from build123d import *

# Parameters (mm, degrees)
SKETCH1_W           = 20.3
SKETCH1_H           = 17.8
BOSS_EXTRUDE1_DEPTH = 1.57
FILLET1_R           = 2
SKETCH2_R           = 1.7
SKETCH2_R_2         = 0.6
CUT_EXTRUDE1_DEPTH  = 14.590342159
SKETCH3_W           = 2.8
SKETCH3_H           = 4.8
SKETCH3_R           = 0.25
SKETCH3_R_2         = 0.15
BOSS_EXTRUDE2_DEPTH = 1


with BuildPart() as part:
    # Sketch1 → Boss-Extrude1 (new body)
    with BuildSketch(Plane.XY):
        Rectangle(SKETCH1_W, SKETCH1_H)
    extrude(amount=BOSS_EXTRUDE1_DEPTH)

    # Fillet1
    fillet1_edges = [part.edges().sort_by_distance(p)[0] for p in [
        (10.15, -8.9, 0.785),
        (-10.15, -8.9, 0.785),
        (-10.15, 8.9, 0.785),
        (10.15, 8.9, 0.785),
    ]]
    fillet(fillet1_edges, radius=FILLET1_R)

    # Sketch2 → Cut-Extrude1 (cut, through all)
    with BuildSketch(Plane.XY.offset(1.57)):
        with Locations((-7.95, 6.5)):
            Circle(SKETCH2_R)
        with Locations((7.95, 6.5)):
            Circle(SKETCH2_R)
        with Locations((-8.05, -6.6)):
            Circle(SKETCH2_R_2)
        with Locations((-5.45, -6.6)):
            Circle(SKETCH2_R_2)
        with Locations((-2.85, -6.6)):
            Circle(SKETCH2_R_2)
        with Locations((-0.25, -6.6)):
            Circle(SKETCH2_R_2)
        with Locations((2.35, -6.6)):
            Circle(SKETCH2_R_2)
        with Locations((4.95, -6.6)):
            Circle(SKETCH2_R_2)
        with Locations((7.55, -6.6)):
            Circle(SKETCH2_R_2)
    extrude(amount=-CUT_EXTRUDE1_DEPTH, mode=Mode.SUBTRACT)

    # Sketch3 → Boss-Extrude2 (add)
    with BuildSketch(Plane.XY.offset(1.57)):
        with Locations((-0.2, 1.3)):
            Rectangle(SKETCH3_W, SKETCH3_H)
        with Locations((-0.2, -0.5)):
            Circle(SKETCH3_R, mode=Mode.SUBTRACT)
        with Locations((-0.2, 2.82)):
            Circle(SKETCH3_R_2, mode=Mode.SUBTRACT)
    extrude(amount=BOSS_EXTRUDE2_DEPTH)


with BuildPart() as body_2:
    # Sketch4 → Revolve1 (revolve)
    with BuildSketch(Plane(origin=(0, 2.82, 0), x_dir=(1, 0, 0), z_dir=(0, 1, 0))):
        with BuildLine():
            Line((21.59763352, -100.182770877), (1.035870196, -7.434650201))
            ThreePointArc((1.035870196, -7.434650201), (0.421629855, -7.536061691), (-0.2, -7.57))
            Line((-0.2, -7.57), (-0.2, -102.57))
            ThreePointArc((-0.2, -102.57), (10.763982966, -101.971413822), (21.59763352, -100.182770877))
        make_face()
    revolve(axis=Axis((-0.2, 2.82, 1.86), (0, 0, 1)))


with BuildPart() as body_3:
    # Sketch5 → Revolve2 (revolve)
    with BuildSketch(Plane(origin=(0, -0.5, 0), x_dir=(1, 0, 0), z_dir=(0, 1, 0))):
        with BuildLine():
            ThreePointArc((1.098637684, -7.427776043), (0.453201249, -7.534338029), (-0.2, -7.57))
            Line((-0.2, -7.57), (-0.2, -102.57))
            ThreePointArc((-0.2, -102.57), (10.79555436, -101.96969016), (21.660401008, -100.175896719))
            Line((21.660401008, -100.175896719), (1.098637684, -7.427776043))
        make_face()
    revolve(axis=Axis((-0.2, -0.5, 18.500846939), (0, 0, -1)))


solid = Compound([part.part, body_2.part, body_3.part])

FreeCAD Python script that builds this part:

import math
import FreeCAD as App
import Part
import Sketcher
from FreeCAD import Vector
Q = App.Units.Quantity


def edges_at(feature, points):
    """Names of the edges that pass closest to the given points."""
    edges = feature.Shape.Edges
    near = lambda p: min(range(len(edges)), key=lambda i: edges[i].distToShape(Part.Vertex(*p))[0])
    return sorted({f"Edge{near(p) + 1}" for p in points})

doc = App.newDocument("Part")
params = doc.addObject("Spreadsheet::Sheet", "Params")
for row, (alias, value) in enumerate([
    ("sketch1_width", "20.3 mm"),
    ("sketch1_height", "17.8 mm"),
    ("pad1_length", "1.57 mm"),
    ("fillet_radius", "2 mm"),
    ("sketch2_diameter", "3.4 mm"),
    ("sketch2_diameter2", "1.2 mm"),
    ("sketch3_diameter", "0.5 mm"),
    ("sketch3_diameter2", "0.3 mm"),
    ("sketch3_width", "2.8 mm"),
    ("sketch3_height", "4.8 mm"),
    ("pad2_length", "1 mm"),
    ("sketch4_height", "95 mm"),
    ("sketch4_radius", "5.71 mm"),
    ("revolution_angle", "360 deg"),
    ("sketch5_radius", "6 mm"),
    ("sketch5_radius2", "101 mm"),
    ("revolution2_angle", "360 deg"),
], start=1):
    params.set(f"A{row}", alias)
    params.set(f"B{row}", "=" + value)
    params.setAlias(f"B{row}", alias)

body = doc.addObject("PartDesign::Body", "Body")

# Sketch on XY plane
sketch1 = body.newObject("Sketcher::SketchObject", "Sketch")
sketch1.AttachmentSupport = (doc.getObject("XY_Plane"), [""])
sketch1.MapMode = "FlatFace"
sketch1.addGeometry([
    Part.LineSegment(Vector(-10, 9, 0), Vector(-10, -9, 0)),
    Part.LineSegment(Vector(-10, -9, 0), Vector(10, -9, 0)),
    Part.LineSegment(Vector(10, -9, 0), Vector(10, 9, 0)),
    Part.LineSegment(Vector(10, 9, 0), Vector(-10, 9, 0)),
], False)
sketch1.addConstraint([
    Sketcher.Constraint("Coincident", 0, 2, 1, 1),
    Sketcher.Constraint("Coincident", 1, 2, 2, 1),
    Sketcher.Constraint("Coincident", 2, 2, 3, 1),
    Sketcher.Constraint("Coincident", 3, 2, 0, 1),
    Sketcher.Constraint("Vertical", 0),
    Sketcher.Constraint("Horizontal", 1),
    Sketcher.Constraint("Vertical", 2),
    Sketcher.Constraint("Horizontal", 3),
    Sketcher.Constraint("Symmetric", 0, 2, 2, 2, -1, 1),
    Sketcher.Constraint("DistanceX", 1, 1, 1, 2, Q("20.3 mm")),
    Sketcher.Constraint("DistanceY", 0, 2, 0, 1, Q("17.8 mm")),
])
sketch1.setExpression("Constraints[9]", "Params.sketch1_width")
sketch1.setExpression("Constraints[10]", "Params.sketch1_height")
pad1 = body.newObject("PartDesign::Pad", "Pad")
pad1.Profile = sketch1
pad1.setExpression("Length", "Params.pad1_length")
doc.recompute()

fillet = body.newObject("PartDesign::Fillet", "Fillet")
fillet.Base = (pad1, edges_at(pad1, [
    (10.15, -8.9, 0.785),
    (-10.15, -8.9, 0.785),
    (-10.15, 8.9, 0.785),
    (10.15, 8.9, 0.785),
]))
fillet.setExpression("Radius", "Params.fillet_radius")

# Sketch on XY plane
sketch2 = body.newObject("Sketcher::SketchObject", "Sketch001")
sketch2.AttachmentSupport = (doc.getObject("XY_Plane"), [""])
sketch2.MapMode = "FlatFace"
sketch2.AttachmentOffset = App.Placement(Vector(0, 0, 1.57), App.Rotation())
sketch2.addGeometry([
    Part.Circle(Vector(-8, 6.5, 0), Vector(0, 0, 1), 1.7),  # 0
    Part.Circle(Vector(8, 6.5, 0), Vector(0, 0, 1), 1.7),  # 1
    Part.Circle(Vector(-8.1, -6.6, 0), Vector(0, 0, 1), 0.6),  # 2
    Part.Circle(Vector(-5.5, -6.6, 0), Vector(0, 0, 1), 0.6),  # 3
    Part.Circle(Vector(-2.9, -6.6, 0), Vector(0, 0, 1), 0.6),  # 4
    Part.Circle(Vector(-0.2, -6.6, 0), Vector(0, 0, 1), 0.6),  # 5
    Part.Circle(Vector(2.4, -6.6, 0), Vector(0, 0, 1), 0.6),  # 6
    Part.Circle(Vector(5, -6.6, 0), Vector(0, 0, 1), 0.6),  # 7
    Part.Circle(Vector(7.5, -6.6, 0), Vector(0, 0, 1), 0.6),  # 8
], False)
sketch2.addConstraint([
    Sketcher.Constraint("Equal", 0, 1),
    Sketcher.Constraint("Equal", 2, 3),
    Sketcher.Constraint("Equal", 3, 4),
    Sketcher.Constraint("Equal", 4, 5),
    Sketcher.Constraint("Equal", 5, 6),
    Sketcher.Constraint("Equal", 6, 7),
    Sketcher.Constraint("Equal", 7, 8),
    Sketcher.Constraint("Symmetric", 0, 3, 1, 3, -2),
    Sketcher.Constraint("Horizontal", 2, 3, 3, 3),
    Sketcher.Constraint("Horizontal", 3, 3, 4, 3),
    Sketcher.Constraint("Horizontal", 4, 3, 5, 3),
    Sketcher.Constraint("Horizontal", 5, 3, 6, 3),
    Sketcher.Constraint("Horizontal", 6, 3, 7, 3),
    Sketcher.Constraint("Horizontal", 7, 3, 8, 3),
    Sketcher.Constraint("Diameter", 0, Q("3.4 mm")),
    Sketcher.Constraint("Diameter", 2, Q("1.2 mm")),
    Sketcher.Constraint("DistanceX", 2, 3, 1, 3, Q("16 mm")),
    Sketcher.Constraint("DistanceX", 2, 3, 7, 3, Q("13 mm")),
    Sketcher.Constraint("DistanceX", 3, 3, 8, 3, Q("13 mm")),
    Sketcher.Constraint("DistanceY", -1, 1, 0, 3, Q("6.5 mm")),
    Sketcher.Constraint("DistanceY", 2, 3, -1, 1, Q("6.6 mm")),
    Sketcher.Constraint("DistanceX", 0, 3, 1, 3, Q("15.9 mm")),
    Sketcher.Constraint("DistanceX", 2, 3, 3, 3, Q("2.6 mm")),
    Sketcher.Constraint("DistanceX", 3, 3, 4, 3, Q("2.6 mm")),
    Sketcher.Constraint("DistanceX", 4, 3, 5, 3, Q("2.6 mm")),
    Sketcher.Constraint("DistanceX", 5, 3, 6, 3, Q("2.6 mm")),
])
sketch2.setExpression("Constraints[14]", "Params.sketch2_diameter")
sketch2.setExpression("Constraints[15]", "Params.sketch2_diameter2")
pocket1 = body.newObject("PartDesign::Pocket", "Pocket")
pocket1.Profile = sketch2
pocket1.Type = "ThroughAll"

# Sketch on XY plane
sketch3 = body.newObject("Sketcher::SketchObject", "Sketch002")
sketch3.AttachmentSupport = (doc.getObject("XY_Plane"), [""])
sketch3.MapMode = "FlatFace"
sketch3.AttachmentOffset = App.Placement(Vector(0, 0, 1.57), App.Rotation())
sketch3.addGeometry([
    Part.LineSegment(Vector(-1.6, 3.7, 0), Vector(-1.6, -1.1, 0)),  # 0
    Part.LineSegment(Vector(-1.6, -1.1, 0), Vector(1.2, -1.1, 0)),  # 1
    Part.LineSegment(Vector(1.2, -1.1, 0), Vector(1.2, 3.7, 0)),  # 2
    Part.LineSegment(Vector(1.2, 3.7, 0), Vector(-1.6, 3.7, 0)),  # 3
    Part.Circle(Vector(-0.2, -0.5, 0), Vector(0, 0, 1), 0.25),  # 4
    Part.Circle(Vector(-0.2, 2.82, 0), Vector(0, 0, 1), 0.15),  # 5
], False)
sketch3.addConstraint([
    Sketcher.Constraint("Coincident", 0, 2, 1, 1),
    Sketcher.Constraint("Coincident", 1, 2, 2, 1),
    Sketcher.Constraint("Coincident", 2, 2, 3, 1),
    Sketcher.Constraint("Coincident", 3, 2, 0, 1),
    Sketcher.Constraint("Vertical", 0),
    Sketcher.Constraint("Horizontal", 1),
    Sketcher.Constraint("Vertical", 2),
    Sketcher.Constraint("Horizontal", 3),
    Sketcher.Constraint("Vertical", 4, 3, 5, 3),
    Sketcher.Constraint("Diameter", 4, Q("0.5 mm")),
    Sketcher.Constraint("Diameter", 5, Q("0.3 mm")),
    Sketcher.Constraint("DistanceX", 1, 1, 1, 2, Q("2.8 mm")),
    Sketcher.Constraint("DistanceY", 0, 2, 0, 1, Q("4.8 mm")),
    Sketcher.Constraint("DistanceX", 4, 3, -1, 1, Q("0.2 mm")),
    Sketcher.Constraint("DistanceY", 4, 3, -1, 1, Q("0.5 mm")),
    Sketcher.Constraint("DistanceX", 0, 2, -1, 1, Q("1.6 mm")),
    Sketcher.Constraint("DistanceY", 0, 2, -1, 1, Q("1.1 mm")),
    Sketcher.Constraint("DistanceY", -1, 1, 5, 3, Q("2.82 mm")),
])
sketch3.setExpression("Constraints[9]", "Params.sketch3_diameter")
sketch3.setExpression("Constraints[10]", "Params.sketch3_diameter2")
sketch3.setExpression("Constraints[11]", "Params.sketch3_width")
sketch3.setExpression("Constraints[12]", "Params.sketch3_height")
pad2 = body.newObject("PartDesign::Pad", "Pad001")
pad2.Profile = sketch3
pad2.setExpression("Length", "Params.pad2_length")
body2 = doc.addObject("PartDesign::Body", "Body001")

# Sketch on XZ plane
sketch4 = body2.newObject("Sketcher::SketchObject", "Sketch003")
sketch4.AttachmentSupport = (doc.getObject("XZ_Plane001"), [""])
sketch4.MapMode = "FlatFace"
sketch4.AttachmentOffset = App.Placement(Vector(0, 0, -2.82), App.Rotation())
sketch4.addGeometry([
    Part.LineSegment(Vector(21.6, 100.2, 0), Vector(1, 7.4, 0)),
    Part.ArcOfCircle(Part.Circle(Vector(-0.2, 1.9, 0), Vector(0, 0, 1), 5.7), math.radians(77.5), math.radians(90)),
    Part.LineSegment(Vector(-0.2, 7.6, 0), Vector(-0.2, 102.6, 0)),
    Part.ArcOfCircle(Part.Circle(Vector(-0.2, 1.9, 0), Vector(0, 0, 1), 100.7), math.radians(77.5), math.radians(90)),
], False)
sketch4.addGeometry(Part.LineSegment(Vector(-0.2, 1.9, 0), Vector(-0.2, 102.6, 0)), True)  # axis
sketch4.addConstraint([
    Sketcher.Constraint("Coincident", 0, 2, 1, 1),
    Sketcher.Constraint("Coincident", 1, 2, 2, 1),
    Sketcher.Constraint("Coincident", 2, 2, 3, 2),
    Sketcher.Constraint("Coincident", 3, 1, 0, 1),
    Sketcher.Constraint("Vertical", 2),
    Sketcher.Constraint("Vertical", 4),
    Sketcher.Constraint("Coincident", 3, 3, 1, 3),
    Sketcher.Constraint("Coincident", 4, 1, 1, 3),
    Sketcher.Constraint("Coincident", 4, 2, 2, 2),
    Sketcher.Constraint("DistanceY", 2, 1, 2, 2, Q("95 mm")),
    Sketcher.Constraint("Radius", 1, Q("5.71 mm")),
    Sketcher.Constraint("Angle", 0, Q("-102.5 deg")),
    Sketcher.Constraint("DistanceX", 1, 3, -1, 1, Q("0.2 mm")),
    Sketcher.Constraint("DistanceY", -1, 1, 1, 3, Q("1.86 mm")),
    Sketcher.Constraint("DistanceX", -1, 1, 0, 2, Q("1.03587 mm")),
])
sketch4.setExpression("Constraints[9]", "Params.sketch4_height")
sketch4.setExpression("Constraints[10]", "Params.sketch4_radius")
revolution = body2.newObject("PartDesign::Revolution", "Revolution")
revolution.Profile = sketch4
revolution.ReferenceAxis = (sketch4, ["Axis0"])
revolution.setExpression("Angle", "Params.revolution_angle")
body3 = doc.addObject("PartDesign::Body", "Body002")

# Sketch on XZ plane
sketch5 = body3.newObject("Sketcher::SketchObject", "Sketch004")
sketch5.AttachmentSupport = (doc.getObject("XZ_Plane002"), [""])
sketch5.MapMode = "FlatFace"
sketch5.AttachmentOffset = App.Placement(Vector(0, 0, 0.5), App.Rotation())
sketch5.addGeometry([
    Part.ArcOfCircle(Part.Circle(Vector(-0.2, 1.6, 0), Vector(0, 0, 1), 6), math.radians(77.5), math.radians(90)),
    Part.LineSegment(Vector(-0.2, 7.6, 0), Vector(-0.2, 102.6, 0)),
    Part.ArcOfCircle(Part.Circle(Vector(-0.2, 1.6, 0), Vector(0, 0, 1), 101), math.radians(77.5), math.radians(90)),
    Part.LineSegment(Vector(21.7, 100.2, 0), Vector(1.1, 7.4, 0)),
], False)
sketch5.addGeometry(Part.LineSegment(Vector(-0.2, 102.6, 0), Vector(-0.2, 1.6, 0)), True)  # axis
sketch5.addConstraint([
    Sketcher.Constraint("Coincident", 0, 2, 1, 1),
    Sketcher.Constraint("Coincident", 1, 2, 2, 2),
    Sketcher.Constraint("Coincident", 2, 1, 3, 1),
    Sketcher.Constraint("Coincident", 3, 2, 0, 1),
    Sketcher.Constraint("Vertical", 1),
    Sketcher.Constraint("Vertical", 4),
    Sketcher.Constraint("Coincident", 2, 3, 0, 3),
    Sketcher.Constraint("Coincident", 4, 1, 1, 2),
    Sketcher.Constraint("Coincident", 4, 2, 0, 3),
    Sketcher.Constraint("Radius", 0, Q("6 mm")),
    Sketcher.Constraint("Radius", 2, Q("101 mm")),
    Sketcher.Constraint("Angle", 3, Q("-102.5 deg")),
    Sketcher.Constraint("DistanceX", 0, 3, -1, 1, Q("0.2 mm")),
    Sketcher.Constraint("DistanceY", -1, 1, 0, 3, Q("1.57 mm")),
    Sketcher.Constraint("DistanceX", -1, 1, 2, 1, Q("21.660401 mm")),
])
sketch5.setExpression("Constraints[9]", "Params.sketch5_radius")
sketch5.setExpression("Constraints[10]", "Params.sketch5_radius2")
revolution2 = body3.newObject("PartDesign::Revolution", "Revolution001")
revolution2.Profile = sketch5
revolution2.ReferenceAxis = (sketch5, ["Axis0"])
revolution2.setExpression("Angle", "Params.revolution2_angle")

doc.recompute()
